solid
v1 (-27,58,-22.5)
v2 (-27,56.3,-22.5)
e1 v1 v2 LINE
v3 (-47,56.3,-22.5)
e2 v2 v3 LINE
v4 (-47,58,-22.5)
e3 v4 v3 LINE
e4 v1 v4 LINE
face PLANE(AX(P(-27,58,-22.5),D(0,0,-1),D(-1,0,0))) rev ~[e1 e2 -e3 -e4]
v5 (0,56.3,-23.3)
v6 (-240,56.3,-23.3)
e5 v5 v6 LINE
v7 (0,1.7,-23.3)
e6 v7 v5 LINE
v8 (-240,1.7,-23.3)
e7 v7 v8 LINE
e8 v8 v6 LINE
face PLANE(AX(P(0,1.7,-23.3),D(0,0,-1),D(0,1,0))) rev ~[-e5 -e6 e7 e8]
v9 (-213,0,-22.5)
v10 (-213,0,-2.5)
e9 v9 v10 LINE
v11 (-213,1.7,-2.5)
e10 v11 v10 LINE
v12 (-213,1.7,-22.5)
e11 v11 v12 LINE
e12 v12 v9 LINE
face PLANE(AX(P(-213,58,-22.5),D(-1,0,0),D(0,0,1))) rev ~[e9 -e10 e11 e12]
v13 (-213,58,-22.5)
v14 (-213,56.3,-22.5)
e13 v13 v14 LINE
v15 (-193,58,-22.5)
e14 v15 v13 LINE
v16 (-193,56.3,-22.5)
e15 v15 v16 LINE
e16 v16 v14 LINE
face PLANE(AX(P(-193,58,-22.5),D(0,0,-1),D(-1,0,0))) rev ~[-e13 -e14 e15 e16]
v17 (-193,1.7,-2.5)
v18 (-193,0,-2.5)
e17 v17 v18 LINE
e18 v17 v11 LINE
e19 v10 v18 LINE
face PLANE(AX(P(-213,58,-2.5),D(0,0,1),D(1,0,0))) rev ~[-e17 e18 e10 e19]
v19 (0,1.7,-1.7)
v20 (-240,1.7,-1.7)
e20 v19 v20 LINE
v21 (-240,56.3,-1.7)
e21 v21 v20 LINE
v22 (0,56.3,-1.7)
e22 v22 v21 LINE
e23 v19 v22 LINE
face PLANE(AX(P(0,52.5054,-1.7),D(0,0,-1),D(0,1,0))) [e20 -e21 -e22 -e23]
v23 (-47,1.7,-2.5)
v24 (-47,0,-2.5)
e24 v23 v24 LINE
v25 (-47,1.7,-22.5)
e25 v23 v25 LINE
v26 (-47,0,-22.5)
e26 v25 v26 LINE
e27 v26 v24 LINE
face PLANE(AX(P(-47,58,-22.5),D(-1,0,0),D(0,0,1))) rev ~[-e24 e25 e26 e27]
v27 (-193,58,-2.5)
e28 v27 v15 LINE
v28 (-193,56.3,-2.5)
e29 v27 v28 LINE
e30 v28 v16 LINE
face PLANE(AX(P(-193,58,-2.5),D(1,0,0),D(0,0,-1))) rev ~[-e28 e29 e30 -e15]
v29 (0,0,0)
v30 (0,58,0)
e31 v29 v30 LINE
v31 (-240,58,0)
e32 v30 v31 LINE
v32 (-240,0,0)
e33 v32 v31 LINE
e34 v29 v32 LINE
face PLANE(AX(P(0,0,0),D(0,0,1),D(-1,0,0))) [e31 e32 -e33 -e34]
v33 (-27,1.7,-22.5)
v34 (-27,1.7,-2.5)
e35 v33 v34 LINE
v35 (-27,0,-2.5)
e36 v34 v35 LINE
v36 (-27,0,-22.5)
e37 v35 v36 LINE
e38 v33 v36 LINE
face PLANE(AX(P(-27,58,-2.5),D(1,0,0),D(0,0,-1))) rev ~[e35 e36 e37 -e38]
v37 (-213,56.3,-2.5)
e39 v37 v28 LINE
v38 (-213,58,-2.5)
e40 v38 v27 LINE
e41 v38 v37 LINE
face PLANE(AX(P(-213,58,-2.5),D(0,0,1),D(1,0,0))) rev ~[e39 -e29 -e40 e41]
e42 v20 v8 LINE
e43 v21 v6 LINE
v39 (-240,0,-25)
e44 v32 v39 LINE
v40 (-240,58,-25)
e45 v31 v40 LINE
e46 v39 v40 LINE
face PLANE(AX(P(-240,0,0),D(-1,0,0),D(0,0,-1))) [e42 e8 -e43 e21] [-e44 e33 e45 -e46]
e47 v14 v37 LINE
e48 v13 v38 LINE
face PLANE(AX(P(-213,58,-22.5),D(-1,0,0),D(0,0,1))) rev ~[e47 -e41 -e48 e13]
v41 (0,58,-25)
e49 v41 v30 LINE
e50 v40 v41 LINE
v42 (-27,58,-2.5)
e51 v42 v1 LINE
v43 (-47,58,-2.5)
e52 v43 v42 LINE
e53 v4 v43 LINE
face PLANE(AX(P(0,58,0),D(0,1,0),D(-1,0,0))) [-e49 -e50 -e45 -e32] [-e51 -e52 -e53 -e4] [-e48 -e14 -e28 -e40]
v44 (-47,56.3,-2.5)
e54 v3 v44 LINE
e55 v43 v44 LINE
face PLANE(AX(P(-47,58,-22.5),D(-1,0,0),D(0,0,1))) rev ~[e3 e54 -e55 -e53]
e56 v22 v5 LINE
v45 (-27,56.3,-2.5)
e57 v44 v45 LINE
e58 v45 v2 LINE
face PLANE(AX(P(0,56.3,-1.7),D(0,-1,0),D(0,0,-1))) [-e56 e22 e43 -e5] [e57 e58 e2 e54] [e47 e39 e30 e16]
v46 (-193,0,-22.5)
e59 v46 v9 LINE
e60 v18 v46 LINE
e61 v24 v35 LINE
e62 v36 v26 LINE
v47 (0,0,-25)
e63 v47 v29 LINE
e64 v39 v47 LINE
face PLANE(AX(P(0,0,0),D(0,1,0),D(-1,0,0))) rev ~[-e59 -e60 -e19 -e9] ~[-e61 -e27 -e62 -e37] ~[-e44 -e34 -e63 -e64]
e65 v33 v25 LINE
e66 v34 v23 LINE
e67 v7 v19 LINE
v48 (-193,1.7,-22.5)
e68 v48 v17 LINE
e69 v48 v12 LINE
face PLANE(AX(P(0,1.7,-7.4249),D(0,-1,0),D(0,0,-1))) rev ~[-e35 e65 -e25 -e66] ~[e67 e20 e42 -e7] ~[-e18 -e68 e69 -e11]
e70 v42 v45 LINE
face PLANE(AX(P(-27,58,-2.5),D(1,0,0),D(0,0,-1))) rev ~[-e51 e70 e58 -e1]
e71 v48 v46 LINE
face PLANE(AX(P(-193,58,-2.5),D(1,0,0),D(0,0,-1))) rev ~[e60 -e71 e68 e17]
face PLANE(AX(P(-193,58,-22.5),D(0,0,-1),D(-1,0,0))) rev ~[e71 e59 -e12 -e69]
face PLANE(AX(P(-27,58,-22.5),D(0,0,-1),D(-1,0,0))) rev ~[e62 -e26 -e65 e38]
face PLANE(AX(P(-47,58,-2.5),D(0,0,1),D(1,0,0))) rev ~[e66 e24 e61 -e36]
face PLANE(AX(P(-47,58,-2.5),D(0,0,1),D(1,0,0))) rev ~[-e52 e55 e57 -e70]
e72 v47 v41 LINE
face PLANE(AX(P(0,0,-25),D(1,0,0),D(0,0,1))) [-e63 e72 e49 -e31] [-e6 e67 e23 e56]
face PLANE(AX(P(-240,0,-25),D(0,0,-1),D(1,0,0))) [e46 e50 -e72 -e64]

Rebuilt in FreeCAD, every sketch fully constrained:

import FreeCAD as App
import Part
import Sketcher
Q = App.Units.Quantity

doc = App.newDocument("Part")
params = doc.addObject("Spreadsheet::Sheet", "Params")
for row, (alias, value) in enumerate([
    ("sketch1_width", "240 mm"),
    ("sketch1_height", "25 mm"),
    ("pad1_length", "58 mm"),
    ("sketch2_width", "20 mm"),
    ("pocket1_length", "58 mm"),
    ("sketch3_width", "54.6 mm"),
    ("sketch3_height", "21.6 mm"),
    ("pocket2_length", "240 mm"),
], start=1):
    params.set(f"A{row}", alias)
    params.set(f"B{row}", "=" + value)
    params.setAlias(f"B{row}", alias)

body = doc.addObject("PartDesign::Body", "Body")

sketch1 = doc.addObject("Sketcher::SketchObject", "Sketch")
body.addObject(sketch1)
sketch1.AttachmentSupport = (doc.XZ_Plane, [""])
sketch1.MapMode = "FlatFace"
sketch1.addGeometry([
    Part.LineSegment(App.Vector(-240, 0, 0), App.Vector(0, 0, 0)),
    Part.LineSegment(App.Vector(0, 0, 0), App.Vector(0, -25, 0)),
    Part.LineSegment(App.Vector(0, -25, 0), App.Vector(-240, -25, 0)),
    Part.LineSegment(App.Vector(-240, -25, 0), App.Vector(-240, 0, 0)),
], False)
sketch1.addConstraint([
    Sketcher.Constraint("Coincident", 0, 2, 1, 1),
    Sketcher.Constraint("Coincident", 1, 2, 2, 1),
    Sketcher.Constraint("Coincident", 2, 2, 3, 1),
    Sketcher.Constraint("Coincident", 3, 2, 0, 1),
    Sketcher.Constraint("Horizontal", 0),
    Sketcher.Constraint("Vertical", 1),
    Sketcher.Constraint("Horizontal", 2),
    Sketcher.Constraint("Vertical", 3),
    Sketcher.Constraint("Coincident", 0, 2, -1, 1),
    Sketcher.Constraint("DistanceX", 0, 1, 0, 2, Q("240 mm")),
    Sketcher.Constraint("DistanceY", 1, 2, 1, 1, Q("25 mm")),
])
sketch1.setExpression("Constraints[9]", "Params.sketch1_width")
sketch1.setExpression("Constraints[10]", "Params.sketch1_height")
pad1 = doc.addObject("PartDesign::Pad", "Pad")
body.addObject(pad1)
pad1.Profile = sketch1
pad1.setExpression("Length", "Params.pad1_length")
pad1.Reversed = True

sketch2 = doc.addObject("Sketcher::SketchObject", "Sketch001")
body.addObject(sketch2)
sketch2.AttachmentSupport = (doc.XZ_Plane, [""])
sketch2.MapMode = "FlatFace"
sketch2.AttachmentOffset = App.Placement(App.Vector(0, 0, -58), App.Rotation())
sketch2.addGeometry([
    Part.LineSegment(App.Vector(-213, -22, 0), App.Vector(-213, -2, 0)),
    Part.LineSegment(App.Vector(-213, -2, 0), App.Vector(-193, -2, 0)),
    Part.LineSegment(App.Vector(-193, -2, 0), App.Vector(-193, -22, 0)),
    Part.LineSegment(App.Vector(-193, -22, 0), App.Vector(-213, -22, 0)),
    Part.LineSegment(App.Vector(-27, -2, 0), App.Vector(-27, -22, 0)),
    Part.LineSegment(App.Vector(-27, -22, 0), App.Vector(-47, -22, 0)),
    Part.LineSegment(App.Vector(-47, -22, 0), App.Vector(-47, -2, 0)),
    Part.LineSegment(App.Vector(-47, -2, 0), App.Vector(-27, -2, 0)),
], False)
sketch2.addConstraint([
    Sketcher.Constraint("Coincident", 0, 2, 1, 1),
    Sketcher.Constraint("Coincident", 1, 2, 2, 1),
    Sketcher.Constraint("Coincident", 2, 2, 3, 1),
    Sketcher.Constraint("Coincident", 3, 2, 0, 1),
    Sketcher.Constraint("Coincident", 4, 2, 5, 1),
    Sketcher.Constraint("Coincident", 5, 2, 6, 1),
    Sketcher.Constraint("Coincident", 6, 2, 7, 1),
    Sketcher.Constraint("Coincident", 7, 2, 4, 1),
    Sketcher.Constraint("Vertical", 0),
    Sketcher.Constraint("Horizontal", 1),
    Sketcher.Constraint("Vertical", 2),
    Sketcher.Constraint("Horizontal", 3),
    Sketcher.Constraint("Vertical", 4),
    Sketcher.Constraint("Horizontal", 5),
    Sketcher.Constraint("Vertical", 6),
    Sketcher.Constraint("Horizontal", 7),
    Sketcher.Constraint("Horizontal", 3, 2, 4, 2),
    Sketcher.Constraint("Horizontal", 1, 2, 6, 2),
    Sketcher.Constraint("Equal", 3, 5),
    Sketcher.Constraint("Equal", 7, 0),
    Sketcher.Constraint("DistanceX", 1, 1, 1, 2, Q("20 mm")),
    Sketcher.Constraint("DistanceX", 4, 2, -1, 1, Q("27 mm")),
    Sketcher.Constraint("DistanceX", 2, 2, 5, 2, Q("146 mm")),
    Sketcher.Constraint("DistanceY", 0, 2, -1, 1, Q("2.5 mm")),
])
sketch2.setExpression("Constraints[20]", "Params.sketch2_width")
pocket1 = doc.addObject("PartDesign::Pocket", "Pocket")
body.addObject(pocket1)
pocket1.Profile = sketch2
pocket1.setExpression("Length", "Params.pocket1_length")
pocket1.Reversed = True

sketch3 = doc.addObject("Sketcher::SketchObject", "Sketch002")
body.addObject(sketch3)
sketch3.AttachmentSupport = (doc.YZ_Plane, [""])
sketch3.MapMode = "FlatFace"
sketch3.addGeometry([
    Part.LineSegment(App.Vector(2, -2, 0), App.Vector(2, -23, 0)),
    Part.LineSegment(App.Vector(2, -23, 0), App.Vector(56, -23, 0)),
    Part.LineSegment(App.Vector(56, -23, 0), App.Vector(56, -2, 0)),
    Part.LineSegment(App.Vector(56, -2, 0), App.Vector(2, -2, 0)),
], False)
sketch3.addConstraint([
    Sketcher.Constraint("Coincident", 0, 2, 1, 1),
    Sketcher.Constraint("Coincident", 1, 2, 2, 1),
    Sketcher.Constraint("Coincident", 2, 2, 3, 1),
    Sketcher.Constraint("Coincident", 3, 2, 0, 1),
    Sketcher.Constraint("Vertical", 0),
    Sketcher.Constraint("Horizontal", 1),
    Sketcher.Constraint("Vertical", 2),
    Sketcher.Constraint("Horizontal", 3),
    Sketcher.Constraint("DistanceX", 1, 1, 1, 2, Q("54.6 mm")),
    Sketcher.Constraint("DistanceY", 0, 2, 0, 1, Q("21.6 mm")),
    Sketcher.Constraint("DistanceX", -1, 1, 0, 2, Q("1.7 mm")),
    Sketcher.Constraint("DistanceY", 0, 2, -1, 1, Q("23.3 mm")),
])
sketch3.setExpression("Constraints[8]", "Params.sketch3_width")
sketch3.setExpression("Constraints[9]", "Params.sketch3_height")
pocket2 = doc.addObject("PartDesign::Pocket", "Pocket001")
body.addObject(pocket2)
pocket2.Profile = sketch3
pocket2.setExpression("Length", "Params.pocket2_length")

doc.recompute()
